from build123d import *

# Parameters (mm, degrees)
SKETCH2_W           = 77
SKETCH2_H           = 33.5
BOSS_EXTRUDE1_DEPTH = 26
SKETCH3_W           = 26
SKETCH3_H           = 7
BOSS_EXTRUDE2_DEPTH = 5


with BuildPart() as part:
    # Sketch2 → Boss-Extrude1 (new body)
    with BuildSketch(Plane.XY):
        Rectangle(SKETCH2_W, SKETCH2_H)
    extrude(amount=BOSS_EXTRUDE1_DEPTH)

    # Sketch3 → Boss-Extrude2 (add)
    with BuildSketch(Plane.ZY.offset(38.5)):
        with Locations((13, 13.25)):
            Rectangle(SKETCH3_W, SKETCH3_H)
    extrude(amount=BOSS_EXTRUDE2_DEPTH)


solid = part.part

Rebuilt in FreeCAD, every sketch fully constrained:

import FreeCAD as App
import Part
import Sketcher
from FreeCAD import Vector
Q = App.Units.Quantity


def add_polygon(sketch, points):
    """Adds a closed chain of lines whose ends are joined by coincident constraints."""
    first, n = sketch.GeometryCount, len(points)
    for a, b in zip(points, points[1:] + points[:1]):
        sketch.addGeometry(Part.LineSegment(App.Vector(*a, 0), App.Vector(*b, 0)), False)
    for i in range(n):
        sketch.addConstraint(Sketcher.Constraint("Coincident", first + i, 2, first + (i + 1) % n, 1))

doc = App.newDocument("Part")
params = doc.addObject("Spreadsheet::Sheet", "Params")
for row, (alias, value) in enumerate([
    ("sketch1_width", "77 mm"),
    ("sketch1_height", "33.5 mm"),
    ("pad1_length", "26 mm"),
    ("sketch2_width", "7 mm"),
    ("sketch2_height", "26 mm"),
    ("pad2_length", "5 mm"),
], start=1):
    params.set(f"A{row}", alias)
    params.set(f"B{row}", "=" + value)
    params.setAlias(f"B{row}", alias)

body = doc.addObject("PartDesign::Body", "Body")

# Sketch on XY plane
sketch1 = doc.addObject("Sketcher::SketchObject", "Sketch")
body.addObject(sketch1)
sketch1.AttachmentSupport = (doc.XY_Plane, [""])
sketch1.MapMode = "FlatFace"
add_polygon(sketch1, [(-38, 17), (-38, -17), (38, -17), (38, 17)])  # lines 0-3
sketch1.addConstraint([
    Sketcher.Constraint("Vertical", 0),
    Sketcher.Constraint("Horizontal", 1),
    Sketcher.Constraint("Vertical", 2),
    Sketcher.Constraint("Horizontal", 3),
    Sketcher.Constraint("Symmetric", 0, 2, 2, 2, -1, 1),
    Sketcher.Constraint("DistanceX", 1, 1, 1, 2, Q("77 mm")),
    Sketcher.Constraint("DistanceY", 0, 2, 0, 1, Q("33.5 mm")),
])
sketch1.setExpression("Constraints[9]", "Params.sketch1_width")
sketch1.setExpression("Constraints[10]", "Params.sketch1_height")
pad1 = doc.addObject("PartDesign::Pad", "Pad")
body.addObject(pad1)
pad1.Profile = sketch1
pad1.setExpression("Length", "Params.pad1_length")

# Sketch on YZ plane
sketch2 = doc.addObject("Sketcher::SketchObject", "Sketch001")
body.addObject(sketch2)
sketch2.AttachmentSupport = (doc.YZ_Plane, [""])
sketch2.MapMode = "FlatFace"
sketch2.AttachmentOffset = App.Placement(Vector(0, 0, -38.5), App.Rotation())
add_polygon(sketch2, [(17, 0), (10, 0), (10, 26), (17, 26)])  # lines 0-3
sketch2.addConstraint([
    Sketcher.Constraint("Horizontal", 0),
    Sketcher.Constraint("Vertical", 1),
    Sketcher.Constraint("Horizontal", 2),
    Sketcher.Constraint("Vertical", 3),
    Sketcher.Constraint("PointOnObject", 0, 2, -1),
    Sketcher.Constraint("DistanceX", 0, 2, 0, 1, Q("7 mm")),
    Sketcher.Constraint("DistanceY", 1, 1, 1, 2, Q("26 mm")),
    Sketcher.Constraint("DistanceX", -1, 1, 0, 2, Q("9.75 mm")),
])
sketch2.setExpression("Constraints[9]", "Params.sketch2_width")
sketch2.setExpression("Constraints[10]", "Params.sketch2_height")
pad2 = doc.addObject("PartDesign::Pad", "Pad001")
body.addObject(pad2)
pad2.Profile = sketch2
pad2.setExpression("Length", "Params.pad2_length")
pad2.Reversed = True

doc.recompute()
